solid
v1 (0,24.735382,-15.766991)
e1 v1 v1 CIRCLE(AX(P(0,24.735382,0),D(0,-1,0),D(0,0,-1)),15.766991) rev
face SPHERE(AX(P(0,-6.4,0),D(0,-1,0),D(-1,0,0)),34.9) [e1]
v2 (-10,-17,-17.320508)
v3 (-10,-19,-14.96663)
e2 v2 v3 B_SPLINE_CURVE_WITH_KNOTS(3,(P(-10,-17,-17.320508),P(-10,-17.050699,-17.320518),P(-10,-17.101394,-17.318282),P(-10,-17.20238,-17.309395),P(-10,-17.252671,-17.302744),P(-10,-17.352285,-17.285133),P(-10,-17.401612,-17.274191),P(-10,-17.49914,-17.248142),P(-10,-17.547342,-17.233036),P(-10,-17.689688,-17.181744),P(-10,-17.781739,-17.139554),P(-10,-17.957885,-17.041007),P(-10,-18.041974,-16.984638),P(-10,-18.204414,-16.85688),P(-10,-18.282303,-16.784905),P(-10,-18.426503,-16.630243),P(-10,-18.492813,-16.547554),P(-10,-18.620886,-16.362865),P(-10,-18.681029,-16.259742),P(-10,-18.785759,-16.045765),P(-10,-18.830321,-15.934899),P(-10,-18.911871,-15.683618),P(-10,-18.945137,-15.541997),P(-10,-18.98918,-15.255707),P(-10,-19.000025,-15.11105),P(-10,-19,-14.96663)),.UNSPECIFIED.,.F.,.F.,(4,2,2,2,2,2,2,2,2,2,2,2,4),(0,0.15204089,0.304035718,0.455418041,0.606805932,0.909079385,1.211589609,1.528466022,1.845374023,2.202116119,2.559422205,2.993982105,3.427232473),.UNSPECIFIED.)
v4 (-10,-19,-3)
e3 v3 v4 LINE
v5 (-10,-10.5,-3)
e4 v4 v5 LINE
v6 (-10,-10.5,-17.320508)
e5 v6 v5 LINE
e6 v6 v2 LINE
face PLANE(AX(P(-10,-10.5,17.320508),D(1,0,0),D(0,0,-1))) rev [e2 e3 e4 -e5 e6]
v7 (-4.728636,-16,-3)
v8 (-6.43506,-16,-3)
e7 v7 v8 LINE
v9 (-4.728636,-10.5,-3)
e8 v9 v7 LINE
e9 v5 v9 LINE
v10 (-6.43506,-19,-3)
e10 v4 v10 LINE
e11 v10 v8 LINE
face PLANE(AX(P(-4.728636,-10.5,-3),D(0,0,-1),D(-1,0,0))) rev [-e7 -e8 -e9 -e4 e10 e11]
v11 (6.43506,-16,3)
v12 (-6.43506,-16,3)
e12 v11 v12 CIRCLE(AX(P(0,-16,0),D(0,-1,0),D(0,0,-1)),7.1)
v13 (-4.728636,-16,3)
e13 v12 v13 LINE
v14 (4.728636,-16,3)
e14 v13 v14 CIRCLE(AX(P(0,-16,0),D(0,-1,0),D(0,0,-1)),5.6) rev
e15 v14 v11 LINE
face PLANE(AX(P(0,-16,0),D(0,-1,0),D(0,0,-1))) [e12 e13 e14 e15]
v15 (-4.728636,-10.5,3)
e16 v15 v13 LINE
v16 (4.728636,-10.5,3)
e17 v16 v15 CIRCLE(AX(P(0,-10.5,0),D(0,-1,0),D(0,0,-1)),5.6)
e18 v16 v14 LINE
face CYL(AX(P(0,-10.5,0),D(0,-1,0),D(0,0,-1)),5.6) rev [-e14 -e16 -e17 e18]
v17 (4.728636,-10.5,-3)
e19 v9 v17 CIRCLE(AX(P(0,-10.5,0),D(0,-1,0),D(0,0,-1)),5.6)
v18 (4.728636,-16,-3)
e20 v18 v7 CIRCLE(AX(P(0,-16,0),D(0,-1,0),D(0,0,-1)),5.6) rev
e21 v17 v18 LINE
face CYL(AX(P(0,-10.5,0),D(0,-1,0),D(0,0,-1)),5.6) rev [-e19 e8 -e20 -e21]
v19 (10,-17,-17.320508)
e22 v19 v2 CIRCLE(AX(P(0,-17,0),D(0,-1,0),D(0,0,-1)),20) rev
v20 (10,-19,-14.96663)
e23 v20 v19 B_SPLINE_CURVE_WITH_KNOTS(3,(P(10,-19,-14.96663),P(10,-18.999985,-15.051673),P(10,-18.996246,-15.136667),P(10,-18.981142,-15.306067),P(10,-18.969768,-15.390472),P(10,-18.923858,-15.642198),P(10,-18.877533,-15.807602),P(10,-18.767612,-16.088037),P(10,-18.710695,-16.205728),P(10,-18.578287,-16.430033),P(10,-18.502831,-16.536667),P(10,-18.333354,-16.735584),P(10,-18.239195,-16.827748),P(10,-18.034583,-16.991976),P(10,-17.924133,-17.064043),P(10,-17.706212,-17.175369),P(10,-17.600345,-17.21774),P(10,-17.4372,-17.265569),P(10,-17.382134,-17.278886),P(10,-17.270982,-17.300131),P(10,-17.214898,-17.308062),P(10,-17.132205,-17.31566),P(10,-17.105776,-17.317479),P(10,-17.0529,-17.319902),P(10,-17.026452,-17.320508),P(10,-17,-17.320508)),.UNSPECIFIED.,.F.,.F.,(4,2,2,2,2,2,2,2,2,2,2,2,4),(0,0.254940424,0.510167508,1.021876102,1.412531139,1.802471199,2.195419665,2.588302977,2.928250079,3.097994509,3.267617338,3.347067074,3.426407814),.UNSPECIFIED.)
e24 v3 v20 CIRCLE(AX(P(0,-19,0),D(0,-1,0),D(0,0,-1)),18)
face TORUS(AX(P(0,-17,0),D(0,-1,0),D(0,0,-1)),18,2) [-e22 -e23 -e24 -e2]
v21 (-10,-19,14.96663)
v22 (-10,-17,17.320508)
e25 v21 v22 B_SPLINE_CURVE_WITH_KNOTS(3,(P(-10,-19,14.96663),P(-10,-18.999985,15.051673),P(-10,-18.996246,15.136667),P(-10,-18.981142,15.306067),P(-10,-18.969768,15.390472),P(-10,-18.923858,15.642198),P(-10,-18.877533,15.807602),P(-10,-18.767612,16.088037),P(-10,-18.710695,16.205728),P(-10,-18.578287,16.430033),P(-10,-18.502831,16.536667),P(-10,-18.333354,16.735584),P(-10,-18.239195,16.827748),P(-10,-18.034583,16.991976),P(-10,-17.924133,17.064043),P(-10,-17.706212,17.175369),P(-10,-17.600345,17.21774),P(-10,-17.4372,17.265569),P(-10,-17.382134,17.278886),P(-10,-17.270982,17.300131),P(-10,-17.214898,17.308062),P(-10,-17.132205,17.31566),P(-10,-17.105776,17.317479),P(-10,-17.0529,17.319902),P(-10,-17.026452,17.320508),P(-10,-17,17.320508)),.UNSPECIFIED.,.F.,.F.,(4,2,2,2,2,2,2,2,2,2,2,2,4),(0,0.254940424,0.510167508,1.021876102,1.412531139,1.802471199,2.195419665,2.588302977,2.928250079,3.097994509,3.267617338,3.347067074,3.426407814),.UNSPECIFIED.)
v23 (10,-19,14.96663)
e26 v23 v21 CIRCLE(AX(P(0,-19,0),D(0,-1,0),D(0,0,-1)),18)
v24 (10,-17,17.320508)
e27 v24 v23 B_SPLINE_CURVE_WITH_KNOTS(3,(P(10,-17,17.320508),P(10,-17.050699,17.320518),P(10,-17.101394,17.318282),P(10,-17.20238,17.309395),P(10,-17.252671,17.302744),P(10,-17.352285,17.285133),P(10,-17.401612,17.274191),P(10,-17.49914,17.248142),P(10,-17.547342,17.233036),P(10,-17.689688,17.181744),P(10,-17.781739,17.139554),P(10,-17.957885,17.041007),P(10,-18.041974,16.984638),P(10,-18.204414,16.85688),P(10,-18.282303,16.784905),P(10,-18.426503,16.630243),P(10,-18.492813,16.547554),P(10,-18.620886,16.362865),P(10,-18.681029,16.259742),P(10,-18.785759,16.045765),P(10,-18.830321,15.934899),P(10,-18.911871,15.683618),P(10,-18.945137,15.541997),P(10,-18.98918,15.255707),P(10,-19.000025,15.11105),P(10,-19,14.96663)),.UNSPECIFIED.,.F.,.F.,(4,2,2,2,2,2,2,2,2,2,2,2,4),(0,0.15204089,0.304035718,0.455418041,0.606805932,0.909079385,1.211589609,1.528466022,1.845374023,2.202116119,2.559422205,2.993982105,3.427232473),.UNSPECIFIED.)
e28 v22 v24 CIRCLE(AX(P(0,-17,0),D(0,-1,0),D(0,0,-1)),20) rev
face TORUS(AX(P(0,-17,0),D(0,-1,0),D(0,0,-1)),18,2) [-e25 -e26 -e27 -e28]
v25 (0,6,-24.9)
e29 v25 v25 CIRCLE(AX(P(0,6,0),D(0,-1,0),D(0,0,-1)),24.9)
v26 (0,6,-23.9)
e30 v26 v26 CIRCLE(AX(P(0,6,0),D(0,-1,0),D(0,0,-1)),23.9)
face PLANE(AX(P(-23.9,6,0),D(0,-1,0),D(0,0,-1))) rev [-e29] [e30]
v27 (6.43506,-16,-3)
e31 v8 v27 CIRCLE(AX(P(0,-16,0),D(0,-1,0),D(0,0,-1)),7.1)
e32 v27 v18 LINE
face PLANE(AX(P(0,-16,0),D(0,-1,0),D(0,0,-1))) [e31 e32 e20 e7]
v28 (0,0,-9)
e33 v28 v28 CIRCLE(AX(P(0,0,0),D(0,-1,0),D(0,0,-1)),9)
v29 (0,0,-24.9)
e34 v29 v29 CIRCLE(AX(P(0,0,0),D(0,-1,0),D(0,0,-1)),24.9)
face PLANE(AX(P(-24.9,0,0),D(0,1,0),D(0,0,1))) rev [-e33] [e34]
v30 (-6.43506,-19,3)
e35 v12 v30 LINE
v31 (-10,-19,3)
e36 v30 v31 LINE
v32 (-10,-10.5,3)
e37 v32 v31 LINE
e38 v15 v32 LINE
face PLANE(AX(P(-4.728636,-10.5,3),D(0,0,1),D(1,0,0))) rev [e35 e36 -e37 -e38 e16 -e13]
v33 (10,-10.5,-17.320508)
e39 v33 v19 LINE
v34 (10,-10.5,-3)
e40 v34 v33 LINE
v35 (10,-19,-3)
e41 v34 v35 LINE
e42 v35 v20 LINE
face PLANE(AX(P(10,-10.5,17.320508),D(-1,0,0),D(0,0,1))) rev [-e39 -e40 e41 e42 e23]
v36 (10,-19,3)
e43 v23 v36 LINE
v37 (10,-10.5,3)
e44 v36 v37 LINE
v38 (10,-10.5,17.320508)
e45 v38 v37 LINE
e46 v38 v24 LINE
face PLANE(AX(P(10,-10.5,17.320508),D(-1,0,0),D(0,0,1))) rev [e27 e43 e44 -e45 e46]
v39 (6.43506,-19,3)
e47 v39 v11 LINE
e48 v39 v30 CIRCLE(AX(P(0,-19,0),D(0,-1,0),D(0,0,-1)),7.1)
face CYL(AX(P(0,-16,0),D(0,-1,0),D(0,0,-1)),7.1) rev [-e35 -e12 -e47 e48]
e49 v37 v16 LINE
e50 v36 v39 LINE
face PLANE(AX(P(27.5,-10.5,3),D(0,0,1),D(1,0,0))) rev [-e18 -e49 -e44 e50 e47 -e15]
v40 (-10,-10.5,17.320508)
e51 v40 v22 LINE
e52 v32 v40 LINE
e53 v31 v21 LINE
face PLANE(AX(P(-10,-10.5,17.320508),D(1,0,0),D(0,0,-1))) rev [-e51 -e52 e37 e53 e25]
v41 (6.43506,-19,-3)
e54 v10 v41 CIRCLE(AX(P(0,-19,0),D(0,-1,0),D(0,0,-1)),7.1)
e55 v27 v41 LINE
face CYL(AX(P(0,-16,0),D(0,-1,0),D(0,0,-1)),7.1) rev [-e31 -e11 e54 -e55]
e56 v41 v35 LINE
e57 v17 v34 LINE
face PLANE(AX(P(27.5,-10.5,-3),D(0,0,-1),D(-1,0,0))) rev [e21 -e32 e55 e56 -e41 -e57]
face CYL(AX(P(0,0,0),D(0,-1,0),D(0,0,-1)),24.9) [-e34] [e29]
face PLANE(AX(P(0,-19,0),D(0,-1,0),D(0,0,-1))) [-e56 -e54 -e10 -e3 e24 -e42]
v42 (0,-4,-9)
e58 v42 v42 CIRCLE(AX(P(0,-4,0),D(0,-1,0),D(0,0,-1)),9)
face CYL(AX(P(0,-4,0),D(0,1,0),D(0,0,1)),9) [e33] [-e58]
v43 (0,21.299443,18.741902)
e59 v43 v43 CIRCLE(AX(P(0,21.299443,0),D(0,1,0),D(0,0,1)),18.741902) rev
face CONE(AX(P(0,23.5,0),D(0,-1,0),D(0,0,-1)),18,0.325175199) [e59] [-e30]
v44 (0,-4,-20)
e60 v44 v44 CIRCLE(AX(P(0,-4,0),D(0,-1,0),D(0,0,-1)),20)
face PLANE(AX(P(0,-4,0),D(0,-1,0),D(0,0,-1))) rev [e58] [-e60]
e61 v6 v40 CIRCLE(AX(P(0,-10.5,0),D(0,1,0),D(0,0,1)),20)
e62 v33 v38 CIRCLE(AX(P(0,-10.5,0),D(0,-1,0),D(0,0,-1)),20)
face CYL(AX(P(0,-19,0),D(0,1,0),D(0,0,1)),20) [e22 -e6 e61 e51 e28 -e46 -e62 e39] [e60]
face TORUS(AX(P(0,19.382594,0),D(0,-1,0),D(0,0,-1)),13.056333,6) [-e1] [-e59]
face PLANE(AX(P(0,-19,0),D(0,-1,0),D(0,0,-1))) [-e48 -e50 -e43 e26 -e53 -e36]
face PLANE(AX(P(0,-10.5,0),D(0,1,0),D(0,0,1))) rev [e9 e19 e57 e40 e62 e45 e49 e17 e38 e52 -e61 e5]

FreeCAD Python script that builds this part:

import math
import FreeCAD as App
import Part
import Sketcher

V = App.Vector


def edges_at(feature, points):
    """Names of the edges that pass closest to the given points."""
    edges = feature.Shape.Edges
    near = lambda p: min(range(len(edges)), key=lambda i: edges[i].distToShape(Part.Vertex(*p))[0])
    return sorted({f"Edge{near(p) + 1}" for p in points})


def add_polygon(sketch, points):
    """Adds a closed chain of lines whose ends are joined by coincident constraints."""
    first, n = sketch.GeometryCount, len(points)
    for a, b in zip(points, points[1:] + points[:1]):
        sketch.addGeometry(Part.LineSegment(App.Vector(*a, 0), App.Vector(*b, 0)), False)
    for i in range(n):
        sketch.addConstraint(Sketcher.Constraint("Coincident", first + i, 2, first + (i + 1) % n, 1))

doc = App.newDocument("Part")
body = doc.addObject("PartDesign::Body", "Body")

# Sketch on XY plane
sketch1 = body.newObject("Sketcher::SketchObject", "Sketch")
sketch1.AttachmentSupport = (doc.getObject("XY_Plane"), [""])
sketch1.MapMode = "FlatFace"
sketch1.addGeometry(Part.LineSegment(V(0, 0, 0), V(0, 28.5, 0)), False)
sketch1.addGeometry(Part.ArcOfCircle(Part.Circle(V(0, -6.4, 0), V(0, 0, 1), 34.9), math.radians(90), math.radians(121)), False)
sketch1.addGeometry(Part.LineSegment(V(-18, 23.5, 0), V(-23.9, 6, 0)), False)
sketch1.addGeometry(Part.LineSegment(V(-23.9, 6, 0), V(-24.9, 6, 0)), False)
sketch1.addGeometry(Part.LineSegment(V(-24.9, 6, 0), V(-24.9, 0, 0)), False)
sketch1.addGeometry(Part.LineSegment(V(-24.9, 0, 0), V(0, 0, 0)), False)
sketch1.addConstraint(Sketcher.Constraint("Coincident", 0, 2, 1, 1))
sketch1.addConstraint(Sketcher.Constraint("Coincident", 1, 2, 2, 1))
sketch1.addConstraint(Sketcher.Constraint("Coincident", 2, 2, 3, 1))
sketch1.addConstraint(Sketcher.Constraint("Coincident", 3, 2, 4, 1))
sketch1.addConstraint(Sketcher.Constraint("Coincident", 4, 2, 5, 1))
sketch1.addConstraint(Sketcher.Constraint("Coincident", 5, 2, 0, 1))
sketch1.addConstraint(Sketcher.Constraint("Vertical", 0))
sketch1.addConstraint(Sketcher.Constraint("Horizontal", 3))
sketch1.addConstraint(Sketcher.Constraint("Vertical", 4))
sketch1.addConstraint(Sketcher.Constraint("Horizontal", 5))
sketch1.addConstraint(Sketcher.Constraint("Coincident", 5, 2, -1, 1))
sketch1.addConstraint(Sketcher.Constraint("PointOnObject", 1, 3, -2))
sketch1.addConstraint(Sketcher.Constraint("Radius", 1, 34.9))
sketch1.addConstraint(Sketcher.Constraint("DistanceX", 3, 2, 3, 1, 1.0))
sketch1.addConstraint(Sketcher.Constraint("DistanceY", 4, 2, 4, 1, 6.0))
sketch1.addConstraint(Sketcher.Constraint("DistanceX", 5, 1, 5, 2, 24.9))
sketch1.addConstraint(Sketcher.Constraint("DistanceY", 0, 1, 0, 2, 28.5))
sketch1.addConstraint(Sketcher.Constraint("DistanceX", 1, 2, -1, 1, 18.0))
revolution = body.newObject("PartDesign::Revolution", "Revolution")
revolution.Profile = sketch1
revolution.ReferenceAxis = (sketch1, ["V_Axis"])
revolution.Angle = 360
doc.recompute()

fillet = body.newObject("PartDesign::Fillet", "Fillet")
fillet.Base = (revolution, edges_at(revolution, [(0, 23.5, 18)]))
fillet.Radius = 6

# Sketch on XZ plane
sketch2 = body.newObject("Sketcher::SketchObject", "Sketch001")
sketch2.AttachmentSupport = (doc.getObject("XZ_Plane"), [""])
sketch2.MapMode = "FlatFace"
sketch2.addGeometry(Part.Circle(V(0, 0, 0), V(0, 0, 1), 9), False)
sketch2.addConstraint(Sketcher.Constraint("Coincident", 0, 3, -1, 1))
sketch2.addConstraint(Sketcher.Constraint("Diameter", 0, 18.0))
pad1 = body.newObject("PartDesign::Pad", "Pad")
pad1.Profile = sketch2
pad1.Length = 4

# Sketch on XZ plane
sketch3 = body.newObject("Sketcher::SketchObject", "Sketch002")
sketch3.AttachmentSupport = (doc.getObject("XZ_Plane"), [""])
sketch3.MapMode = "FlatFace"
sketch3.AttachmentOffset = App.Placement(V(0, 0, 4), App.Rotation())
sketch3.addGeometry(Part.Circle(V(0, 0, 0), V(0, 0, 1), 20), False)
sketch3.addConstraint(Sketcher.Constraint("Coincident", 0, 3, -1, 1))
sketch3.addConstraint(Sketcher.Constraint("Diameter", 0, 40.0))
pad2 = body.newObject("PartDesign::Pad", "Pad001")
pad2.Profile = sketch3
pad2.Length = 15

# Sketch on XZ plane
sketch4 = body.newObject("Sketcher::SketchObject", "Sketch003")
sketch4.AttachmentSupport = (doc.getObject("XZ_Plane"), [""])
sketch4.MapMode = "FlatFace"
sketch4.AttachmentOffset = App.Placement(V(0, 0, 19), App.Rotation())
add_polygon(sketch4, [(-42, 17), (-42, -17), (-10, -17), (-10, 17)])  # lines 0-3
add_polygon(sketch4, [(10, 17), (10, -17), (39, -17), (39, 17)])  # lines 4-7
sketch4.addConstraint(Sketcher.Constraint("Vertical", 0))
sketch4.addConstraint(Sketcher.Constraint("Horizontal", 1))
sketch4.addConstraint(Sketcher.Constraint("Vertical", 2))
sketch4.addConstraint(Sketcher.Constraint("Horizontal", 3))
sketch4.addConstraint(Sketcher.Constraint("Vertical", 4))
sketch4.addConstraint(Sketcher.Constraint("Horizontal", 5))
sketch4.addConstraint(Sketcher.Constraint("Vertical", 6))
sketch4.addConstraint(Sketcher.Constraint("Horizontal", 7))
sketch4.addConstraint(Sketcher.Constraint("Symmetric", 2, 2, 4, 2, -1, 1))
sketch4.addConstraint(Sketcher.Constraint("Horizontal", 1, 2, 4, 2))
sketch4.addConstraint(Sketcher.Constraint("Horizontal", 3, 2, 6, 2))
sketch4.addConstraint(Sketcher.Constraint("DistanceX", 1, 2, -1, 1, 10.0))
sketch4.addConstraint(Sketcher.Constraint("DistanceX", 5, 1, 5, 2, 29.367709))
sketch4.addConstraint(Sketcher.Constraint("DistanceX", 1, 1, 1, 2, 32.033377))
sketch4.addConstraint(Sketcher.Constraint("DistanceY", 0, 2, 0, 1, 34.641016))
pocket1 = body.newObject("PartDesign::Pocket", "Pocket")
pocket1.Profile = sketch4
pocket1.Length = 8.5

# Sketch on XZ plane
sketch5 = body.newObject("Sketcher::SketchObject", "Sketch004")
sketch5.AttachmentSupport = (doc.getObject("XZ_Plane"), [""])
sketch5.MapMode = "FlatFace"
sketch5.AttachmentOffset = App.Placement(V(0, 0, 19), App.Rotation())
sketch5.addGeometry(Part.LineSegment(V(-5, 3, 0), V(-28, 3, 0)), False)
sketch5.addGeometry(Part.LineSegment(V(-28, 3, 0), V(-28, -3, 0)), False)
sketch5.addGeometry(Part.LineSegment(V(-28, -3, 0), V(-5, -3, 0)), False)
sketch5.addGeometry(Part.ArcOfCircle(Part.Circle(V(0, 0, 0), V(0, 0, 1), 6), math.radians(-148), math.radians(-32)), False)
sketch5.addGeometry(Part.LineSegment(V(5, -3, 0), V(28, -3, 0)), False)
sketch5.addGeometry(Part.LineSegment(V(28, -3, 0), V(28, 3, 0)), False)
sketch5.addGeometry(Part.LineSegment(V(28, 3, 0), V(5, 3, 0)), False)
sketch5.addGeometry(Part.ArcOfCircle(Part.Circle(V(0, 0, 0), V(0, 0, 1), 6), math.radians(32), math.radians(148)), False)
sketch5.addConstraint(Sketcher.Constraint("Coincident", 0, 2, 1, 1))
sketch5.addConstraint(Sketcher.Constraint("Coincident", 1, 2, 2, 1))
sketch5.addConstraint(Sketcher.Constraint("Coincident", 2, 2, 3, 1))
sketch5.addConstraint(Sketcher.Constraint("Coincident", 3, 2, 4, 1))
sketch5.addConstraint(Sketcher.Constraint("Coincident", 4, 2, 5, 1))
sketch5.addConstraint(Sketcher.Constraint("Coincident", 5, 2, 6, 1))
sketch5.addConstraint(Sketcher.Constraint("Coincident", 6, 2, 7, 1))
sketch5.addConstraint(Sketcher.Constraint("Coincident", 7, 2, 0, 1))
sketch5.addConstraint(Sketcher.Constraint("Horizontal", 0))
sketch5.addConstraint(Sketcher.Constraint("Vertical", 1))
sketch5.addConstraint(Sketcher.Constraint("Horizontal", 2))
sketch5.addConstraint(Sketcher.Constraint("Horizontal", 4))
sketch5.addConstraint(Sketcher.Constraint("Vertical", 5))
sketch5.addConstraint(Sketcher.Constraint("Horizontal", 6))
sketch5.addConstraint(Sketcher.Constraint("Coincident", 3, 3, -1, 1))
sketch5.addConstraint(Sketcher.Constraint("Coincident", 7, 3, -1, 1))
sketch5.addConstraint(Sketcher.Constraint("Equal", 3, 7))
sketch5.addConstraint(Sketcher.Constraint("Symmetric", 0, 2, 4, 2, -1, 1))
sketch5.addConstraint(Sketcher.Constraint("Horizontal", 2, 2, 3, 2))
sketch5.addConstraint(Sketcher.Constraint("Horizontal", 0, 2, 5, 2))
sketch5.addConstraint(Sketcher.Constraint("Radius", 3, 5.6))
sketch5.addConstraint(Sketcher.Constraint("DistanceY", 1, 2, 1, 1, 6.0))
sketch5.addConstraint(Sketcher.Constraint("DistanceX", 1, 2, 4, 2, 55.0))
pocket2 = body.newObject("PartDesign::Pocket", "Pocket001")
pocket2.Profile = sketch5
pocket2.Length = 8.5

# Sketch on XZ plane
sketch6 = body.newObject("Sketcher::SketchObject", "Sketch005")
sketch6.AttachmentSupport = (doc.getObject("XZ_Plane"), [""])
sketch6.MapMode = "FlatFace"
sketch6.AttachmentOffset = App.Placement(V(0, 0, 19), App.Rotation())
sketch6.addGeometry(Part.Circle(V(0, 0, 0), V(0, 0, 1), 7), False)
sketch6.addConstraint(Sketcher.Constraint("Coincident", 0, 3, -1, 1))
sketch6.addConstraint(Sketcher.Constraint("Diameter", 0, 14.2))
pocket3 = body.newObject("PartDesign::Pocket", "Pocket002")
pocket3.Profile = sketch6
pocket3.Length = 3
doc.recompute()

fillet2 = body.newObject("PartDesign::Fillet", "Fillet001")
fillet2.Base = (pocket3, edges_at(pocket3, [(0, -19, 20), (5.176, -19, -19.319)]))
fillet2.Radius = 2

doc.recompute()
